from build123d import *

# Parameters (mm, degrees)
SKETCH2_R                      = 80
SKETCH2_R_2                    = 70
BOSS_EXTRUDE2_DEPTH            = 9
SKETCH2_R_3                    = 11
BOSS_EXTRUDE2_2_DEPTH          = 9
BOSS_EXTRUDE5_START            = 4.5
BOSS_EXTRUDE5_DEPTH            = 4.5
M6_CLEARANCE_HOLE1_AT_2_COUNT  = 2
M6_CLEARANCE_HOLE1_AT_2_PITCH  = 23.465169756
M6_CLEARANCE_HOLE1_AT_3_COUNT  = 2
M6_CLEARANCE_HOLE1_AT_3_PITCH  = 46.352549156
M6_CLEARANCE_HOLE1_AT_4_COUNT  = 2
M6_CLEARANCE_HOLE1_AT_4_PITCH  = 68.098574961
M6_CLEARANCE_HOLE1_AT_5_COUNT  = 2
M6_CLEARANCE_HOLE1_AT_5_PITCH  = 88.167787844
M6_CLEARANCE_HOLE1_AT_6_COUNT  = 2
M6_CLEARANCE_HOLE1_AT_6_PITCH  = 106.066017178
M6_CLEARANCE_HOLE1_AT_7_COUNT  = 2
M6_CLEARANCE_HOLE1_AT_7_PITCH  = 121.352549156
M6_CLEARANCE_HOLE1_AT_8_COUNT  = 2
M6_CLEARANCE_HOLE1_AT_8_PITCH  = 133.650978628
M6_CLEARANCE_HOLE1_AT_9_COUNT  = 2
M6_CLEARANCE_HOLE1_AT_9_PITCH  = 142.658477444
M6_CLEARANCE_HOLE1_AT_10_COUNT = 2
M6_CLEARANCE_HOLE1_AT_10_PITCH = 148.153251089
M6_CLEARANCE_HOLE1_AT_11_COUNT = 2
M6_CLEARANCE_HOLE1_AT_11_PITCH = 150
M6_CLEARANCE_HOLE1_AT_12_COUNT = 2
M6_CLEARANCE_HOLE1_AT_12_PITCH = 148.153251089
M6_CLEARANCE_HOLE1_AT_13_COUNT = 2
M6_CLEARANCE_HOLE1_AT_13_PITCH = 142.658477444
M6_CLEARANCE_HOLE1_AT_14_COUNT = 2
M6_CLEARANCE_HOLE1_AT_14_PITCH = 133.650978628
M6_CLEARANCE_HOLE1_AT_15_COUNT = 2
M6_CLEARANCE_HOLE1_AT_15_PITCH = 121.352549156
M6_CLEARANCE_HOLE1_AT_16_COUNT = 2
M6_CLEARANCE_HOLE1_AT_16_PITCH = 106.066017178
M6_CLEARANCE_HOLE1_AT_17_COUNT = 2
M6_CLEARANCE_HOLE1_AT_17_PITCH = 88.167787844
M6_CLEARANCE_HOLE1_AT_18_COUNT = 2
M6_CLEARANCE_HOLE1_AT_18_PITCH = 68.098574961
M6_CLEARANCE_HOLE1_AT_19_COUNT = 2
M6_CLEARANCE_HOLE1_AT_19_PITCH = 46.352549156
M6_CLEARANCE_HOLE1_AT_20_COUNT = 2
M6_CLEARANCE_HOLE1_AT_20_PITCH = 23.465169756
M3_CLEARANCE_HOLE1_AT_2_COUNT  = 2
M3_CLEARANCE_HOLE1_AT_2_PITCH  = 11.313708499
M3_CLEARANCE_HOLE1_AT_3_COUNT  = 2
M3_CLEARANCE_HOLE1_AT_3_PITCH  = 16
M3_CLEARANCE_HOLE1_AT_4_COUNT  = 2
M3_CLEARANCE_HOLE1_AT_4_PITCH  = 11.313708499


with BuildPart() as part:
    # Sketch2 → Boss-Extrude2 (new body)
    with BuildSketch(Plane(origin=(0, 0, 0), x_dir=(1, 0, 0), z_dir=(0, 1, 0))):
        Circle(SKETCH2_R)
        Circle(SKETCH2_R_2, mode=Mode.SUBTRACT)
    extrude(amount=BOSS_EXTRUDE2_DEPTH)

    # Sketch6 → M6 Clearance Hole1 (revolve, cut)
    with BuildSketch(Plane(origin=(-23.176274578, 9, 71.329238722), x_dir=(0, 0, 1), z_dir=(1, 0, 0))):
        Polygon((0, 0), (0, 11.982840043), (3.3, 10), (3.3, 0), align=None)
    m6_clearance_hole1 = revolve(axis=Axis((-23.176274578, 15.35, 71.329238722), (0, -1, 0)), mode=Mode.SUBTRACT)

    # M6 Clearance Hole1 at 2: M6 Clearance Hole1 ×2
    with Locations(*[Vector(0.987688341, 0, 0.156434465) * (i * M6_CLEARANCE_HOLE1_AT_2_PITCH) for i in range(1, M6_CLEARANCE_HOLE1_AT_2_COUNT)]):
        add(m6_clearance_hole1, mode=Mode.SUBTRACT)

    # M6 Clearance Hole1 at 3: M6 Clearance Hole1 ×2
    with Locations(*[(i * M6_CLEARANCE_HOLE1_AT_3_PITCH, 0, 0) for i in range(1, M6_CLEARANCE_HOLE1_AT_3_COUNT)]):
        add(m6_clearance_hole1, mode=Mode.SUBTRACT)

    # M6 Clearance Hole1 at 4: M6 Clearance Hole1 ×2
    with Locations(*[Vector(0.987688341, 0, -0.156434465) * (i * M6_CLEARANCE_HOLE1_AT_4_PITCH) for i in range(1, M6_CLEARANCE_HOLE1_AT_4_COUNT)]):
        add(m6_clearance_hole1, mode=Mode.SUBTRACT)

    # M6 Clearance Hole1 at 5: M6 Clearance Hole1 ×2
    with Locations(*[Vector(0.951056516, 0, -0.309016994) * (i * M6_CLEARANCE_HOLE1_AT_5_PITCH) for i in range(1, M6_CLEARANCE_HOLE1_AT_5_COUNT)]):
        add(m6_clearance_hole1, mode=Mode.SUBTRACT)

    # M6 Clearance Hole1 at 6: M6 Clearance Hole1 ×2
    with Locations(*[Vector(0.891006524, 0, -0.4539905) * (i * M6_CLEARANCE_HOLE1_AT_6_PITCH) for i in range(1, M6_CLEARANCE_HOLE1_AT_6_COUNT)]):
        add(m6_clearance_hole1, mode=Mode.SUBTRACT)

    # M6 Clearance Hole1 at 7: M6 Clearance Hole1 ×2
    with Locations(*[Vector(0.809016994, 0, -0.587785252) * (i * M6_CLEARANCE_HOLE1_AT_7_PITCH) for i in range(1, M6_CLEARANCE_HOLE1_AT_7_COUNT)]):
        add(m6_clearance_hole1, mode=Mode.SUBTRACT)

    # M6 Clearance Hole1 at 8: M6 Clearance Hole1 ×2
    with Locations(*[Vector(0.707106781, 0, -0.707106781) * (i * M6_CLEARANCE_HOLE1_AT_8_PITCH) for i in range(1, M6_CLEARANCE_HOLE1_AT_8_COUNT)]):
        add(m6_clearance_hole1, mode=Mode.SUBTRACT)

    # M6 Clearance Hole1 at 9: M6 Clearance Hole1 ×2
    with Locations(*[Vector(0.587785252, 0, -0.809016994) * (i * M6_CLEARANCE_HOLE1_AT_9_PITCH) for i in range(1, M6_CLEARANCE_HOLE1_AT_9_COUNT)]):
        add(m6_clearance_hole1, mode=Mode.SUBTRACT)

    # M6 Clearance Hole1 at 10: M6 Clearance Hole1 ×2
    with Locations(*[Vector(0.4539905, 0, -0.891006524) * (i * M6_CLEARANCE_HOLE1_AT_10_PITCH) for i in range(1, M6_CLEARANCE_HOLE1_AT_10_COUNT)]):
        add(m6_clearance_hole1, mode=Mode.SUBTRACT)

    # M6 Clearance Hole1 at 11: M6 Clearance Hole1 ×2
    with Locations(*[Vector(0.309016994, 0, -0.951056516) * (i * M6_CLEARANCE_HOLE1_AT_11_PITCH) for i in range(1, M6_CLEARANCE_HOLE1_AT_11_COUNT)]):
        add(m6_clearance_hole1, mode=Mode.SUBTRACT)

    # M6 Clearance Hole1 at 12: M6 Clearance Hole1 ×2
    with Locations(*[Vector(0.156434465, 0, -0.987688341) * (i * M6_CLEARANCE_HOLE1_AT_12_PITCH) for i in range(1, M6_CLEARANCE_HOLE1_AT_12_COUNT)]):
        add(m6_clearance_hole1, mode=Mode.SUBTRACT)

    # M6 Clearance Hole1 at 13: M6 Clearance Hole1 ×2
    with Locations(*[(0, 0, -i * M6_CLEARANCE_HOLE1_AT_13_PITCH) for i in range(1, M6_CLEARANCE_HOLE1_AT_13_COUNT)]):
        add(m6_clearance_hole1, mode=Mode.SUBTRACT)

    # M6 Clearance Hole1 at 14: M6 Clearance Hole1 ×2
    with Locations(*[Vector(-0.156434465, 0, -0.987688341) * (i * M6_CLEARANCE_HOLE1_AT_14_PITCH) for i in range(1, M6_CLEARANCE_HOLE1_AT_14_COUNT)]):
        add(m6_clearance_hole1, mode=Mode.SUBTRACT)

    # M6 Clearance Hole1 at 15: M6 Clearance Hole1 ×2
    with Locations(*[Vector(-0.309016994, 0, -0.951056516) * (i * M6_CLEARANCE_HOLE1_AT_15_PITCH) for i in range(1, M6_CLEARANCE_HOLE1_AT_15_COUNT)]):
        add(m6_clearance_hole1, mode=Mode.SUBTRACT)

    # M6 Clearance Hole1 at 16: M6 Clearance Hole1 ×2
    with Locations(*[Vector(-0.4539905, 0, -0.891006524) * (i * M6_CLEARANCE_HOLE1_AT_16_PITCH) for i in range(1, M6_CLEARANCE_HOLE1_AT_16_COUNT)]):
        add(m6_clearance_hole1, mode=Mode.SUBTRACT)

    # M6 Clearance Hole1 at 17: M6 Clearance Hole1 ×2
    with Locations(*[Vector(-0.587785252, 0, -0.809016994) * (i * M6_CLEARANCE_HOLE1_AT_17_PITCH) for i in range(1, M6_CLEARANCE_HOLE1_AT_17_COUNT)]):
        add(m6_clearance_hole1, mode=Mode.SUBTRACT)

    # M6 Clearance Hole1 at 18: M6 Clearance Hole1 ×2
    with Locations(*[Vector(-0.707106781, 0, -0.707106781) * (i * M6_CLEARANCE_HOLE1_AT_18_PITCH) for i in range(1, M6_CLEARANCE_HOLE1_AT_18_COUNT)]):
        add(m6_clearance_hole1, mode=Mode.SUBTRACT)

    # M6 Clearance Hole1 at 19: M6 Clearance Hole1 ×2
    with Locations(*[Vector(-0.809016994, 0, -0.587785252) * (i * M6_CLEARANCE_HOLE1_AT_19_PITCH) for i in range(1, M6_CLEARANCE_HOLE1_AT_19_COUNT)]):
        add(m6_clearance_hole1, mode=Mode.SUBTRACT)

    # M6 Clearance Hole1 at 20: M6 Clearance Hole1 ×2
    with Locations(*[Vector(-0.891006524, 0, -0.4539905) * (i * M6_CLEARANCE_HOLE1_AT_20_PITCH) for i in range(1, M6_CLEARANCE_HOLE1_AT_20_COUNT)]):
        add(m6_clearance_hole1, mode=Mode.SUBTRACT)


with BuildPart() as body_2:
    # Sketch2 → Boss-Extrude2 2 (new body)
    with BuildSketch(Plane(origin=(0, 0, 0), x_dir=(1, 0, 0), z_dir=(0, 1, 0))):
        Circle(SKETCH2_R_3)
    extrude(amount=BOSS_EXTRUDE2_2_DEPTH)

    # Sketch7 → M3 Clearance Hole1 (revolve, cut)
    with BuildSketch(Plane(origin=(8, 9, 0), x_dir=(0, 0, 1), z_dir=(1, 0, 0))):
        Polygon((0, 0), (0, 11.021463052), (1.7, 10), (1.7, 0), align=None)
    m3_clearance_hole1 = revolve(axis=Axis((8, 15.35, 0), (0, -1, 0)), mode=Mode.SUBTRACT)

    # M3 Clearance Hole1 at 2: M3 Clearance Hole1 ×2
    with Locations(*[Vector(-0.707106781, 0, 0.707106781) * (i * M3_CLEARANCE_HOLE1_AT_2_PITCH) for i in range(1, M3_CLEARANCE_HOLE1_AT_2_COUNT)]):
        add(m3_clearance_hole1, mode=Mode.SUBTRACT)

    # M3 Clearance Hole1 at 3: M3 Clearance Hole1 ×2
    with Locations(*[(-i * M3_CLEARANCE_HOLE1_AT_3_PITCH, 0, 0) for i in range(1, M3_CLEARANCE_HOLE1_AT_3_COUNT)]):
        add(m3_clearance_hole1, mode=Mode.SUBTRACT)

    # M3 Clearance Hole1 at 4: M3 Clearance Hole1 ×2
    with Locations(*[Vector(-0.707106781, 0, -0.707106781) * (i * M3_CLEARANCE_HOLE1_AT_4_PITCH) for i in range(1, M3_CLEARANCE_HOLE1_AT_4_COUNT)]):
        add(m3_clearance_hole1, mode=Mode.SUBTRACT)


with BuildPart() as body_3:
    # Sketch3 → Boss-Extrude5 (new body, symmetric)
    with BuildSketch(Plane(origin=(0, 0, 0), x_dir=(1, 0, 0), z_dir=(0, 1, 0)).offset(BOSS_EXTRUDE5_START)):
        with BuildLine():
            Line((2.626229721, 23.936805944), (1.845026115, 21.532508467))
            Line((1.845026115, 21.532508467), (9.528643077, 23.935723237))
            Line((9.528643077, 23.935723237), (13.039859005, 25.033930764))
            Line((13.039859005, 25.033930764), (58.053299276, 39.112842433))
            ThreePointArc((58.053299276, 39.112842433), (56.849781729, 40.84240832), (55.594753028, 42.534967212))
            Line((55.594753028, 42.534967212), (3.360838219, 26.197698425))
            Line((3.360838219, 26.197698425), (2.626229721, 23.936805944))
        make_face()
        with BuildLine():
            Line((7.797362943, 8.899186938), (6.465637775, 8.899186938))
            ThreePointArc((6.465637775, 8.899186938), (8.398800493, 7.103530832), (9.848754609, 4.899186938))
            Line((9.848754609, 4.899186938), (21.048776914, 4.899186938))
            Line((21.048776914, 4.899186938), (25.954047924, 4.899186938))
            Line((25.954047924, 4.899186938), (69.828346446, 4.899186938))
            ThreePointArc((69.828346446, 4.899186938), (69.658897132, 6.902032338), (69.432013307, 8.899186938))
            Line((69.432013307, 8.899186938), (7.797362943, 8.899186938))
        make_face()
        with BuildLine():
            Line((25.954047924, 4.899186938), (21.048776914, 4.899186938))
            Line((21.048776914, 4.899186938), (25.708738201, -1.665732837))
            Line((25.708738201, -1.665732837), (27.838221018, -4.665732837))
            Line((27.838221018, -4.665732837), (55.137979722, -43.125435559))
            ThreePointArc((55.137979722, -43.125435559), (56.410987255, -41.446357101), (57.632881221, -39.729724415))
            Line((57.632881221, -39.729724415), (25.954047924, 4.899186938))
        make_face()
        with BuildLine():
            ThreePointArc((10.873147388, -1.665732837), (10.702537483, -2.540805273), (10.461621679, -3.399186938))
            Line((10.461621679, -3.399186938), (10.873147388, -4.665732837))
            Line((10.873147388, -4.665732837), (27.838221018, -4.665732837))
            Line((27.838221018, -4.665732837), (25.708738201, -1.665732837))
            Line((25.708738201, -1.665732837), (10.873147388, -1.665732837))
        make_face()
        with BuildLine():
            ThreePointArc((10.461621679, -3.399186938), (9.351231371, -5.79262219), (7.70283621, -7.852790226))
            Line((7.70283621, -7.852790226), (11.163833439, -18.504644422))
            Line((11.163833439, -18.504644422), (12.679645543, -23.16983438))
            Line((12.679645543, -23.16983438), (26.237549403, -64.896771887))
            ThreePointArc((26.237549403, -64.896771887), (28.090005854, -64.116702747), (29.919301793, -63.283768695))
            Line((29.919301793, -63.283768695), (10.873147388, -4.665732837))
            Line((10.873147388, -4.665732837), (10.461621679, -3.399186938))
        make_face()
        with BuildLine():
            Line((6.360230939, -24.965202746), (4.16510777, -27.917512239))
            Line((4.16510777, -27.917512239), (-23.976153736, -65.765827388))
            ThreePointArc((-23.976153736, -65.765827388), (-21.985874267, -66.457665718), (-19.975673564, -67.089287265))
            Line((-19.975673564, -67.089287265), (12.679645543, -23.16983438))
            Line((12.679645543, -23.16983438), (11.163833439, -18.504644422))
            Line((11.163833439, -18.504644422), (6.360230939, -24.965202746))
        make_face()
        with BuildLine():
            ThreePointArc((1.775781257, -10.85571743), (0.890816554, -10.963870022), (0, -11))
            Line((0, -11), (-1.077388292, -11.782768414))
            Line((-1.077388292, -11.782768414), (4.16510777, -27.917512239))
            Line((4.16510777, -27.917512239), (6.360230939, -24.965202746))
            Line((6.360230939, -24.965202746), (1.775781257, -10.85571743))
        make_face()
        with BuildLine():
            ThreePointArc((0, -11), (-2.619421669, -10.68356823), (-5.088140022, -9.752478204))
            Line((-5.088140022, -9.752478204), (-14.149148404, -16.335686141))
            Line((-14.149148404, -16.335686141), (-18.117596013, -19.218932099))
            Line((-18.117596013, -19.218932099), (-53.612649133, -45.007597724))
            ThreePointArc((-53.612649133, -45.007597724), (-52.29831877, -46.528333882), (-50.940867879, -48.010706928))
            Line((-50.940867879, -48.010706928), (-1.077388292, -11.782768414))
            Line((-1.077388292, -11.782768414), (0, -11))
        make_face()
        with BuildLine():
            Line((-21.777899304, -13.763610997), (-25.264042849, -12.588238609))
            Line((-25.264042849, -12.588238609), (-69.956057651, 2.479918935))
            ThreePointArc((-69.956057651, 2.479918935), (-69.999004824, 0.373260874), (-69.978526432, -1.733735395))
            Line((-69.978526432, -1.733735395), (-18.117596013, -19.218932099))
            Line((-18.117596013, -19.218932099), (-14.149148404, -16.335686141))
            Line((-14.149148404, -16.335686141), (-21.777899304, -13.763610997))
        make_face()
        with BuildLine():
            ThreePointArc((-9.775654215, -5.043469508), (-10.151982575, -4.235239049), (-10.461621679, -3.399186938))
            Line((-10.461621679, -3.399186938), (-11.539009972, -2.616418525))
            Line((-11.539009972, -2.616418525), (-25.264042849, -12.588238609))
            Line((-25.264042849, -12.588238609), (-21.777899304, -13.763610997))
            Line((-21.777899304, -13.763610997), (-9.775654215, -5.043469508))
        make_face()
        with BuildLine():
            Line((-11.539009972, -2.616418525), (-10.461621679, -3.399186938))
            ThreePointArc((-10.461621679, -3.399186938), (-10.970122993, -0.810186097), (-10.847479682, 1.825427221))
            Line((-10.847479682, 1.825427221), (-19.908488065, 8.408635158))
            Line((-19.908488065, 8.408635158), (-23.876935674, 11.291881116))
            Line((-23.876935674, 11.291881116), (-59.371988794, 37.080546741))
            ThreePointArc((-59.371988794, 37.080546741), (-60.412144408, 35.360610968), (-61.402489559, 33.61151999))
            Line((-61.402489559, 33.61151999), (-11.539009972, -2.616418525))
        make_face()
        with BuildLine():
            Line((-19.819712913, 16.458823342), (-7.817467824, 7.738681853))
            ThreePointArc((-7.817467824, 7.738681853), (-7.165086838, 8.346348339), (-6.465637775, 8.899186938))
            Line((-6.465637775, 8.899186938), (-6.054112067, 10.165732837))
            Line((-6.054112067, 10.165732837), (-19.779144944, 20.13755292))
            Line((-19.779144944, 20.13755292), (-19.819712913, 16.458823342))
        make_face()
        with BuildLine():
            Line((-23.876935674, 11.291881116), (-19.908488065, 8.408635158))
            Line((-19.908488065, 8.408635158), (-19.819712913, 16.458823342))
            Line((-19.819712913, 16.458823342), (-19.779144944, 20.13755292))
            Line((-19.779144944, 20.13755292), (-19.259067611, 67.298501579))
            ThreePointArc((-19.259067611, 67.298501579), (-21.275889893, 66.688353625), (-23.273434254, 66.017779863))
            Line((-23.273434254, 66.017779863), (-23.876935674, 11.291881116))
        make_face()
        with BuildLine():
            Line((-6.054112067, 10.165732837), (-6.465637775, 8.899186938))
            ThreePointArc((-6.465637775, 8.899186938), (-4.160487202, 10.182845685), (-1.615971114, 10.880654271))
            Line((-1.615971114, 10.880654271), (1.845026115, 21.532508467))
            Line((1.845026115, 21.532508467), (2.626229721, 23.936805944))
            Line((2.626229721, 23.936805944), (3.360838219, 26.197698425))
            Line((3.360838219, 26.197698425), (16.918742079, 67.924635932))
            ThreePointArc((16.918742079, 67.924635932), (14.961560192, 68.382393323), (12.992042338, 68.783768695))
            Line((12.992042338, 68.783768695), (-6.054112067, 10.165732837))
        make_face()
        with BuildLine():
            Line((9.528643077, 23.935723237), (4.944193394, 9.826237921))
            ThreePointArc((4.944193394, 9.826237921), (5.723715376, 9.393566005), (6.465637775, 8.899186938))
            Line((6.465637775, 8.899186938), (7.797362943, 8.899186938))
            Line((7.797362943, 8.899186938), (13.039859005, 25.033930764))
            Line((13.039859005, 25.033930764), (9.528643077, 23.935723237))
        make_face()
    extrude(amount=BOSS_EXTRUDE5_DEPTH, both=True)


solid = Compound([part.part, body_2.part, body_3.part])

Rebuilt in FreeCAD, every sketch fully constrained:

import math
import FreeCAD as App
import Part
import Sketcher

V = App.Vector
Q = App.Units.Quantity


def add_polygon(sketch, points):
    """Adds a closed chain of lines whose ends are joined by coincident constraints."""
    first, n = sketch.GeometryCount, len(points)
    for a, b in zip(points, points[1:] + points[:1]):
        sketch.addGeometry(Part.LineSegment(App.Vector(*a, 0), App.Vector(*b, 0)), False)
    for i in range(n):
        sketch.addConstraint(Sketcher.Constraint("Coincident", first + i, 2, first + (i + 1) % n, 1))

doc = App.newDocument("Part")
body = doc.addObject("PartDesign::Body", "Body")

# Sketch on XZ plane
sketch1 = doc.addObject("Sketcher::SketchObject", "Sketch")
body.addObject(sketch1)
sketch1.AttachmentSupport = (doc.XZ_Plane, [""])
sketch1.MapMode = "FlatFace"
sketch1.addGeometry([
    Part.Circle(V(0, 0, 0), V(0, 0, 1), 80),
    Part.Circle(V(0, 0, 0), V(0, 0, 1), 70),
], False)
sketch1.addConstraint([
    Sketcher.Constraint("Coincident", 0, 3, -1, 1),
    Sketcher.Constraint("Coincident", 1, 3, -1, 1),
    Sketcher.Constraint("Diameter", 0, Q("160 mm")),
    Sketcher.Constraint("Diameter", 1, Q("140 mm")),
])
pad1 = doc.addObject("PartDesign::Pad", "Pad")
body.addObject(pad1)
pad1.Profile = sketch1
pad1.Length = 9
pad1.Reversed = True

# Sketch on YZ plane
sketch2 = doc.addObject("Sketcher::SketchObject", "Sketch001")
body.addObject(sketch2)
sketch2.AttachmentSupport = (doc.YZ_Plane, [""])
sketch2.MapMode = "FlatFace"
sketch2.AttachmentOffset = App.Placement(V(0, 0, -23.176275), App.Rotation())
add_polygon(sketch2, [(-2.98284, 71.329239), (9, 71.329239), (9, 74.629239), (-1, 74.629239)])  # lines 0-3
sketch2.addGeometry(Part.LineSegment(V(9, 71.329239, 0), V(-2.98284, 71.329239, 0)), True)  # axis
sketch2.addConstraint([
    Sketcher.Constraint("Horizontal", 0),
    Sketcher.Constraint("Vertical", 1),
    Sketcher.Constraint("Horizontal", 2),
    Sketcher.Constraint("Horizontal", 4),
    Sketcher.Constraint("Coincident", 4, 1, 0, 2),
    Sketcher.Constraint("Equal", 0, 4),
    Sketcher.Constraint("DistanceX", 2, 2, 2, 1, Q("10 mm")),
    Sketcher.Constraint("Angle", 3, Q("-121 deg")),
    Sketcher.Constraint("DistanceY", 1, 1, 1, 2, Q("3.3 mm")),
    Sketcher.Constraint("DistanceX", -1, 1, 0, 2, Q("9 mm")),
    Sketcher.Constraint("DistanceY", -1, 1, 0, 2, Q("71.329239 mm")),
])
groove = doc.addObject("PartDesign::Groove", "Groove")
body.addObject(groove)
groove.Profile = sketch2
groove.ReferenceAxis = (sketch2, ["Axis0"])
groove.Angle = 360
doc.recompute()

datumline = doc.addObject("PartDesign::Line", "DatumLine")
body.addObject(datumline)
datumline.Placement = App.Placement(V(0, 0, 0), App.Rotation(V(0, 0, 1), V(0.987688341, 0, 0.156434465)))
linearpattern = doc.addObject("PartDesign::LinearPattern", "LinearPattern")
body.addObject(linearpattern)
linearpattern.Originals = [groove]
linearpattern.Direction = (datumline, [""])
linearpattern.Mode = "offset"
linearpattern.Offset = 23.46517
linearpattern.Occurrences = 2
body.Tip = linearpattern
doc.recompute()

linearpattern2 = doc.addObject("PartDesign::LinearPattern", "LinearPattern001")
body.addObject(linearpattern2)
linearpattern2.Originals = [groove]
linearpattern2.Direction = (doc.X_Axis, [""])
linearpattern2.Mode = "offset"
linearpattern2.Offset = 46.352549
linearpattern2.Occurrences = 2
body.Tip = linearpattern2
doc.recompute()

datumline2 = doc.addObject("PartDesign::Line", "DatumLine001")
body.addObject(datumline2)
datumline2.Placement = App.Placement(V(0, 0, 0), App.Rotation(V(0, 0, 1), V(0.987688341, 0, -0.156434465)))
linearpattern3 = doc.addObject("PartDesign::LinearPattern", "LinearPattern002")
body.addObject(linearpattern3)
linearpattern3.Originals = [groove]
linearpattern3.Direction = (datumline2, [""])
linearpattern3.Mode = "offset"
linearpattern3.Offset = 68.098575
linearpattern3.Occurrences = 2
body.Tip = linearpattern3
doc.recompute()

datumline3 = doc.addObject("PartDesign::Line", "DatumLine002")
body.addObject(datumline3)
datumline3.Placement = App.Placement(V(0, 0, 0), App.Rotation(V(0, 0, 1), V(0.951056516, 0, -0.309016994)))
linearpattern4 = doc.addObject("PartDesign::LinearPattern", "LinearPattern003")
body.addObject(linearpattern4)
linearpattern4.Originals = [groove]
linearpattern4.Direction = (datumline3, [""])
linearpattern4.Mode = "offset"
linearpattern4.Offset = 88.167788
linearpattern4.Occurrences = 2
body.Tip = linearpattern4
doc.recompute()

datumline4 = doc.addObject("PartDesign::Line", "DatumLine003")
body.addObject(datumline4)
datumline4.Placement = App.Placement(V(0, 0, 0), App.Rotation(V(0, 0, 1), V(0.891006524, 0, -0.4539905)))
linearpattern5 = doc.addObject("PartDesign::LinearPattern", "LinearPattern004")
body.addObject(linearpattern5)
linearpattern5.Originals = [groove]
linearpattern5.Direction = (datumline4, [""])
linearpattern5.Mode = "offset"
linearpattern5.Offset = 106.066017
linearpattern5.Occurrences = 2
body.Tip = linearpattern5
doc.recompute()

datumline5 = doc.addObject("PartDesign::Line", "DatumLine004")
body.addObject(datumline5)
datumline5.Placement = App.Placement(V(0, 0, 0), App.Rotation(V(0, 0, 1), V(0.809016994, 0, -0.587785252)))
linearpattern6 = doc.addObject("PartDesign::LinearPattern", "LinearPattern005")
body.addObject(linearpattern6)
linearpattern6.Originals = [groove]
linearpattern6.Direction = (datumline5, [""])
linearpattern6.Mode = "offset"
linearpattern6.Offset = 121.352549
linearpattern6.Occurrences = 2
body.Tip = linearpattern6
doc.recompute()

datumline6 = doc.addObject("PartDesign::Line", "DatumLine005")
body.addObject(datumline6)
datumline6.Placement = App.Placement(V(0, 0, 0), App.Rotation(V(0, 0, 1), V(0.707106781, 0, -0.707106781)))
linearpattern7 = doc.addObject("PartDesign::LinearPattern", "LinearPattern006")
body.addObject(linearpattern7)
linearpattern7.Originals = [groove]
linearpattern7.Direction = (datumline6, [""])
linearpattern7.Mode = "offset"
linearpattern7.Offset = 133.650979
linearpattern7.Occurrences = 2
body.Tip = linearpattern7
doc.recompute()

datumline7 = doc.addObject("PartDesign::Line", "DatumLine006")
body.addObject(datumline7)
datumline7.Placement = App.Placement(V(0, 0, 0), App.Rotation(V(0, 0, 1), V(0.587785252, 0, -0.809016994)))
linearpattern8 = doc.addObject("PartDesign::LinearPattern", "LinearPattern007")
body.addObject(linearpattern8)
linearpattern8.Originals = [groove]
linearpattern8.Direction = (datumline7, [""])
linearpattern8.Mode = "offset"
linearpattern8.Offset = 142.658477
linearpattern8.Occurrences = 2
body.Tip = linearpattern8
doc.recompute()

datumline8 = doc.addObject("PartDesign::Line", "DatumLine007")
body.addObject(datumline8)
datumline8.Placement = App.Placement(V(0, 0, 0), App.Rotation(V(0, 0, 1), V(0.4539905, 0, -0.891006524)))
linearpattern9 = doc.addObject("PartDesign::LinearPattern", "LinearPattern008")
body.addObject(linearpattern9)
linearpattern9.Originals = [groove]
linearpattern9.Direction = (datumline8, [""])
linearpattern9.Mode = "offset"
linearpattern9.Offset = 148.153251
linearpattern9.Occurrences = 2
body.Tip = linearpattern9
doc.recompute()

datumline9 = doc.addObject("PartDesign::Line", "DatumLine008")
body.addObject(datumline9)
datumline9.Placement = App.Placement(V(0, 0, 0), App.Rotation(V(0, 0, 1), V(0.309016994, 0, -0.951056516)))
linearpattern10 = doc.addObject("PartDesign::LinearPattern", "LinearPattern009")
body.addObject(linearpattern10)
linearpattern10.Originals = [groove]
linearpattern10.Direction = (datumline9, [""])
linearpattern10.Mode = "offset"
linearpattern10.Offset = 150
linearpattern10.Occurrences = 2
body.Tip = linearpattern10
doc.recompute()

datumline10 = doc.addObject("PartDesign::Line", "DatumLine009")
body.addObject(datumline10)
datumline10.Placement = App.Placement(V(0, 0, 0), App.Rotation(V(0, 0, 1), V(0.156434465, 0, -0.987688341)))
linearpattern11 = doc.addObject("PartDesign::LinearPattern", "LinearPattern010")
body.addObject(linearpattern11)
linearpattern11.Originals = [groove]
linearpattern11.Direction = (datumline10, [""])
linearpattern11.Mode = "offset"
linearpattern11.Offset = 148.153251
linearpattern11.Occurrences = 2
body.Tip = linearpattern11
doc.recompute()

linearpattern12 = doc.addObject("PartDesign::LinearPattern", "LinearPattern011")
body.addObject(linearpattern12)
linearpattern12.Originals = [groove]
linearpattern12.Direction = (doc.Z_Axis, [""])
linearpattern12.Mode = "offset"
linearpattern12.Offset = 142.658477
linearpattern12.Occurrences = 2
linearpattern12.Reversed = True
body.Tip = linearpattern12
doc.recompute()

datumline11 = doc.addObject("PartDesign::Line", "DatumLine010")
body.addObject(datumline11)
datumline11.Placement = App.Placement(V(0, 0, 0), App.Rotation(V(0, 0, 1), V(-0.156434465, 0, -0.987688341)))
linearpattern13 = doc.addObject("PartDesign::LinearPattern", "LinearPattern012")
body.addObject(linearpattern13)
linearpattern13.Originals = [groove]
linearpattern13.Direction = (datumline11, [""])
linearpattern13.Mode = "offset"
linearpattern13.Offset = 133.650979
linearpattern13.Occurrences = 2
body.Tip = linearpattern13
doc.recompute()

datumline12 = doc.addObject("PartDesign::Line", "DatumLine011")
body.addObject(datumline12)
datumline12.Placement = App.Placement(V(0, 0, 0), App.Rotation(V(0, 0, 1), V(-0.309016994, 0, -0.951056516)))
linearpattern14 = doc.addObject("PartDesign::LinearPattern", "LinearPattern013")
body.addObject(linearpattern14)
linearpattern14.Originals = [groove]
linearpattern14.Direction = (datumline12, [""])
linearpattern14.Mode = "offset"
linearpattern14.Offset = 121.352549
linearpattern14.Occurrences = 2
body.Tip = linearpattern14
doc.recompute()

datumline13 = doc.addObject("PartDesign::Line", "DatumLine012")
body.addObject(datumline13)
datumline13.Placement = App.Placement(V(0, 0, 0), App.Rotation(V(0, 0, 1), V(-0.4539905, 0, -0.891006524)))
linearpattern15 = doc.addObject("PartDesign::LinearPattern", "LinearPattern014")
body.addObject(linearpattern15)
linearpattern15.Originals = [groove]
linearpattern15.Direction = (datumline13, [""])
linearpattern15.Mode = "offset"
linearpattern15.Offset = 106.066017
linearpattern15.Occurrences = 2
body.Tip = linearpattern15
doc.recompute()

datumline14 = doc.addObject("PartDesign::Line", "DatumLine013")
body.addObject(datumline14)
datumline14.Placement = App.Placement(V(0, 0, 0), App.Rotation(V(0, 0, 1), V(-0.587785252, 0, -0.809016994)))
linearpattern16 = doc.addObject("PartDesign::LinearPattern", "LinearPattern015")
body.addObject(linearpattern16)
linearpattern16.Originals = [groove]
linearpattern16.Direction = (datumline14, [""])
linearpattern16.Mode = "offset"
linearpattern16.Offset = 88.167788
linearpattern16.Occurrences = 2
body.Tip = linearpattern16
doc.recompute()

datumline15 = doc.addObject("PartDesign::Line", "DatumLine014")
body.addObject(datumline15)
datumline15.Placement = App.Placement(V(0, 0, 0), App.Rotation(V(0, 0, 1), V(-0.707106781, 0, -0.707106781)))
linearpattern17 = doc.addObject("PartDesign::LinearPattern", "LinearPattern016")
body.addObject(linearpattern17)
linearpattern17.Originals = [groove]
linearpattern17.Direction = (datumline15, [""])
linearpattern17.Mode = "offset"
linearpattern17.Offset = 68.098575
linearpattern17.Occurrences = 2
body.Tip = linearpattern17
doc.recompute()

datumline16 = doc.addObject("PartDesign::Line", "DatumLine015")
body.addObject(datumline16)
datumline16.Placement = App.Placement(V(0, 0, 0), App.Rotation(V(0, 0, 1), V(-0.809016994, 0, -0.587785252)))
linearpattern18 = doc.addObject("PartDesign::LinearPattern", "LinearPattern017")
body.addObject(linearpattern18)
linearpattern18.Originals = [groove]
linearpattern18.Direction = (datumline16, [""])
linearpattern18.Mode = "offset"
linearpattern18.Offset = 46.352549
linearpattern18.Occurrences = 2
body.Tip = linearpattern18
doc.recompute()

datumline17 = doc.addObject("PartDesign::Line", "DatumLine016")
body.addObject(datumline17)
datumline17.Placement = App.Placement(V(0, 0, 0), App.Rotation(V(0, 0, 1), V(-0.891006524, 0, -0.4539905)))
linearpattern19 = doc.addObject("PartDesign::LinearPattern", "LinearPattern018")
body.addObject(linearpattern19)
linearpattern19.Originals = [groove]
linearpattern19.Direction = (datumline17, [""])
linearpattern19.Mode = "offset"
linearpattern19.Offset = 23.46517
linearpattern19.Occurrences = 2
body.Tip = linearpattern19
body2 = doc.addObject("PartDesign::Body", "Body001")

# Sketch on XZ plane
sketch3 = doc.addObject("Sketcher::SketchObject", "Sketch002")
body2.addObject(sketch3)
sketch3.AttachmentSupport = (doc.getObject("XZ_Plane001"), [""])
sketch3.MapMode = "FlatFace"
sketch3.addGeometry(Part.Circle(V(0, 0, 0), V(0, 0, 1), 11), False)
sketch3.addConstraint([
    Sketcher.Constraint("Coincident", 0, 3, -1, 1),
    Sketcher.Constraint("Diameter", 0, Q("22 mm")),
])
pad2 = doc.addObject("PartDesign::Pad", "Pad001")
body2.addObject(pad2)
pad2.Profile = sketch3
pad2.Length = 9
pad2.Reversed = True

# Sketch on YZ plane
sketch4 = doc.addObject("Sketcher::SketchObject", "Sketch003")
body2.addObject(sketch4)
sketch4.AttachmentSupport = (doc.getObject("YZ_Plane001"), [""])
sketch4.MapMode = "FlatFace"
sketch4.AttachmentOffset = App.Placement(V(0, 0, 8), App.Rotation())
add_polygon(sketch4, [(-2.021463, 0), (9, 0), (9, 1.7), (-1, 1.7)])  # lines 0-3
sketch4.addConstraint([
    Sketcher.Constraint("Horizontal", 0),
    Sketcher.Constraint("Vertical", 1),
    Sketcher.Constraint("Horizontal", 2),
    Sketcher.Constraint("PointOnObject", 0, 2, -1),
    Sketcher.Constraint("DistanceX", 2, 2, 2, 1, Q("10 mm")),
    Sketcher.Constraint("Angle", 3, Q("-121 deg")),
    Sketcher.Constraint("DistanceY", 1, 1, 1, 2, Q("1.7 mm")),
    Sketcher.Constraint("DistanceX", -1, 1, 0, 2, Q("9 mm")),
])
groove2 = doc.addObject("PartDesign::Groove", "Groove001")
body2.addObject(groove2)
groove2.Profile = sketch4
groove2.ReferenceAxis = (sketch4, ["H_Axis"])
groove2.Angle = 360
doc.recompute()

datumline18 = doc.addObject("PartDesign::Line", "DatumLine017")
body2.addObject(datumline18)
datumline18.Placement = App.Placement(V(0, 0, 0), App.Rotation(V(0, 0, 1), V(-0.707106781, 0, 0.707106781)))
linearpattern20 = doc.addObject("PartDesign::LinearPattern", "LinearPattern019")
body2.addObject(linearpattern20)
linearpattern20.Originals = [groove2]
linearpattern20.Direction = (datumline18, [""])
linearpattern20.Mode = "offset"
linearpattern20.Offset = 11.313708
linearpattern20.Occurrences = 2
body2.Tip = linearpattern20
doc.recompute()

linearpattern21 = doc.addObject("PartDesign::LinearPattern", "LinearPattern020")
body2.addObject(linearpattern21)
linearpattern21.Originals = [groove2]
linearpattern21.Direction = (doc.getObject("X_Axis001"), [""])
linearpattern21.Mode = "offset"
linearpattern21.Offset = 16
linearpattern21.Occurrences = 2
linearpattern21.Reversed = True
body2.Tip = linearpattern21
doc.recompute()

datumline19 = doc.addObject("PartDesign::Line", "DatumLine018")
body2.addObject(datumline19)
datumline19.Placement = App.Placement(V(0, 0, 0), App.Rotation(V(0, 0, 1), V(-0.707106781, 0, -0.707106781)))
linearpattern22 = doc.addObject("PartDesign::LinearPattern", "LinearPattern021")
body2.addObject(linearpattern22)
linearpattern22.Originals = [groove2]
linearpattern22.Direction = (datumline19, [""])
linearpattern22.Mode = "offset"
linearpattern22.Offset = 11.313708
linearpattern22.Occurrences = 2
body2.Tip = linearpattern22
body3 = doc.addObject("PartDesign::Body", "Body002")

# Sketch on XZ plane
sketch5 = doc.addObject("Sketcher::SketchObject", "Sketch004")
body3.addObject(sketch5)
sketch5.AttachmentSupport = (doc.getObject("XZ_Plane002"), [""])
sketch5.MapMode = "FlatFace"
sketch5.AttachmentOffset = App.Placement(V(0, 0, -4.5), App.Rotation())
sketch5.addGeometry([
    Part.LineSegment(V(13.039859, -25.033931, 0), V(58.053299, -39.112842, 0)),  # 0
    Part.ArcOfCircle(Part.Circle(V(0, 0, 0), V(0, 0, 1), 70), math.radians(-37.419227), math.radians(-33.969734)),  # 1
    Part.LineSegment(V(55.594753, -42.534967, 0), V(3.360838, -26.197698, 0)),  # 2
    Part.LineSegment(V(3.360838, -26.197698, 0), V(16.918742, -67.924636, 0)),  # 3
    Part.ArcOfCircle(Part.Circle(V(0, 0.000001, 0), V(0, 0, 1), 70.000001), math.radians(-79.303849), math.radians(-76.01332)),  # 4
    Part.LineSegment(V(12.992042, -68.783769, 0), V(-6.054112, -10.165733, 0)),  # 5
    Part.LineSegment(V(-6.054112, -10.165733, 0), V(-19.779145, -20.137553, 0)),  # 6
    Part.LineSegment(V(-19.779145, -20.137553, 0), V(-19.259068, -67.298502, 0)),  # 7
    Part.ArcOfCircle(Part.Circle(V(0, 0.000001, 0), V(0, 0, 1), 70.000001), math.radians(-109.419227), math.radians(-105.969734)),  # 8
    Part.LineSegment(V(-23.273434, -66.01778, 0), V(-23.876936, -11.291881, 0)),  # 9
    Part.LineSegment(V(-23.876936, -11.291881, 0), V(-59.371989, -37.080547, 0)),  # 10
    Part.ArcOfCircle(Part.Circle(V(0, 0, 0), V(0, 0, 1), 70), math.radians(-151.303849), math.radians(-148.01332)),  # 11
    Part.LineSegment(V(-61.40249, -33.61152, 0), V(-11.53901, 2.616419, 0)),  # 12
    Part.LineSegment(V(-11.53901, 2.616419, 0), V(-25.264043, 12.588239, 0)),  # 13
    Part.LineSegment(V(-25.264043, 12.588239, 0), V(-69.956058, -2.479919, 0)),  # 14
    Part.ArcOfCircle(Part.Circle(V(0, 0, 0), V(0, 0, 1), 70), math.radians(178.580773), math.radians(182.030266)),  # 15
    Part.LineSegment(V(-69.978526, 1.733735, 0), V(-18.117596, 19.218932, 0)),  # 16
    Part.LineSegment(V(-18.117596, 19.218932, 0), V(-53.612649, 45.007598, 0)),  # 17
    Part.ArcOfCircle(Part.Circle(V(0, 0, 0), V(0, 0, 1), 69.999999), math.radians(136.696151), math.radians(139.98668)),  # 18
    Part.LineSegment(V(-50.940868, 48.010707, 0), V(-1.077388, 11.782768, 0)),  # 19
    Part.LineSegment(V(-1.077388, 11.782768, 0), V(4.165108, 27.917512, 0)),  # 20
    Part.LineSegment(V(4.165108, 27.917512, 0), V(-23.976154, 65.765827, 0)),  # 21
    Part.ArcOfCircle(Part.Circle(V(0, -0.000001, 0), V(0, 0, 1), 70.000001), math.radians(106.580773), math.radians(110.030266)),  # 22
    Part.LineSegment(V(-19.975674, 67.089287, 0), V(12.679646, 23.169834, 0)),  # 23
    Part.LineSegment(V(12.679646, 23.169834, 0), V(26.237549, 64.896772, 0)),  # 24
    Part.ArcOfCircle(Part.Circle(V(0, 0, 0), V(0, 0, 1), 70), math.radians(64.696151), math.radians(67.98668)),  # 25
    Part.LineSegment(V(29.919302, 63.283769, 0), V(10.873147, 4.665733, 0)),  # 26
    Part.LineSegment(V(10.873147, 4.665733, 0), V(27.838221, 4.665733, 0)),  # 27
    Part.LineSegment(V(27.838221, 4.665733, 0), V(55.13798, 43.125436, 0)),  # 28
    Part.ArcOfCircle(Part.Circle(V(0.000001, 0.000001, 0), V(0, 0, 1), 69.999999), math.radians(34.580773), math.radians(38.030266)),  # 29
    Part.LineSegment(V(57.632881, 39.729724, 0), V(25.954048, -4.899187, 0)),  # 30
    Part.LineSegment(V(25.954048, -4.899187, 0), V(69.828346, -4.899187, 0)),  # 31
    Part.ArcOfCircle(Part.Circle(V(0, 0, 0), V(0, 0, 1), 70), math.radians(-7.303849), math.radians(-4.01332)),  # 32
    Part.LineSegment(V(69.432013, -8.899187, 0), V(7.797363, -8.899187, 0)),  # 33
    Part.LineSegment(V(7.797363, -8.899187, 0), V(13.039859, -25.033931, 0)),  # 34
    Part.LineSegment(V(1.845026, -21.532508, 0), V(9.528643, -23.935723, 0)),  # 35
    Part.LineSegment(V(9.528643, -23.935723, 0), V(4.944193, -9.826238, 0)),  # 36
    Part.ArcOfCircle(Part.Circle(V(0, 0, 0), V(0, 0, 1), 11), math.radians(-63.290179), math.radians(-54)),  # 37
    Part.ArcOfCircle(Part.Circle(V(0, 0, 0), V(0, 0, 1), 11), math.radians(-54), math.radians(-26.447694)),  # 38
    Part.LineSegment(V(9.848755, -4.899187, 0), V(21.048777, -4.899187, 0)),  # 39
    Part.LineSegment(V(21.048777, -4.899187, 0), V(25.708738, 1.665733, 0)),  # 40
    Part.LineSegment(V(25.708738, 1.665733, 0), V(10.873147, 1.665733, 0)),  # 41
    Part.ArcOfCircle(Part.Circle(V(0, 0, 0), V(0, 0, 1), 11), math.radians(8.709821), math.radians(18)),  # 42
    Part.ArcOfCircle(Part.Circle(V(0, 0, 0), V(0, 0, 1), 11), math.radians(18), math.radians(45.552306)),  # 43
    Part.LineSegment(V(7.702836, 7.85279, 0), V(11.163833, 18.504644, 0)),  # 44
    Part.LineSegment(V(11.163833, 18.504644, 0), V(6.360231, 24.965203, 0)),  # 45
    Part.LineSegment(V(6.360231, 24.965203, 0), V(1.775781, 10.855717, 0)),  # 46
    Part.ArcOfCircle(Part.Circle(V(0, 0, 0), V(0, 0, 1), 11), math.radians(80.709821), math.radians(90)),  # 47
    Part.ArcOfCircle(Part.Circle(V(0, 0, 0), V(0, 0, 1), 11), math.radians(90), math.radians(117.552306)),  # 48
    Part.LineSegment(V(-5.08814, 9.752478, 0), V(-14.149148, 16.335686, 0)),  # 49
    Part.LineSegment(V(-14.149148, 16.335686, 0), V(-21.777899, 13.763611, 0)),  # 50
    Part.LineSegment(V(-21.777899, 13.763611, 0), V(-9.775654, 5.04347, 0)),  # 51
    Part.ArcOfCircle(Part.Circle(V(0, 0, 0), V(0, 0, 1), 11), math.radians(152.709821), math.radians(162)),  # 52
    Part.ArcOfCircle(Part.Circle(V(0, 0, 0), V(0, 0, 1), 11), math.radians(162), math.radians(189.552306)),  # 53
    Part.LineSegment(V(-10.84748, -1.825427, 0), V(-19.908488, -8.408635, 0)),  # 54
    Part.LineSegment(V(-19.908488, -8.408635, 0), V(-19.819713, -16.458823, 0)),  # 55
    Part.LineSegment(V(-19.819713, -16.458823, 0), V(-7.817468, -7.738682, 0)),  # 56
    Part.ArcOfCircle(Part.Circle(V(0, 0, 0), V(0, 0, 1), 11), math.radians(-135.290179), math.radians(-126)),  # 57
    Part.ArcOfCircle(Part.Circle(V(0, 0, 0), V(0, 0, 1), 11), math.radians(-126), math.radians(-98.447694)),  # 58
    Part.LineSegment(V(-1.615971, -10.880654, 0), V(1.845026, -21.532508, 0)),  # 59
], False)
sketch5.addConstraint([
    Sketcher.Constraint("Coincident", 0, 2, 1, 2),
    Sketcher.Constraint("Coincident", 1, 1, 2, 1),
    Sketcher.Constraint("Coincident", 2, 2, 3, 1),
    Sketcher.Constraint("Coincident", 3, 2, 4, 2),
    Sketcher.Constraint("Coincident", 4, 1, 5, 1),
    Sketcher.Constraint("Coincident", 5, 2, 6, 1),
    Sketcher.Constraint("Coincident", 6, 2, 7, 1),
    Sketcher.Constraint("Coincident", 7, 2, 8, 2),
    Sketcher.Constraint("Coincident", 8, 1, 9, 1),
    Sketcher.Constraint("Coincident", 9, 2, 10, 1),
    Sketcher.Constraint("Coincident", 10, 2, 11, 2),
    Sketcher.Constraint("Coincident", 11, 1, 12, 1),
    Sketcher.Constraint("Coincident", 12, 2, 13, 1),
    Sketcher.Constraint("Coincident", 13, 2, 14, 1),
    Sketcher.Constraint("Coincident", 14, 2, 15, 2),
    Sketcher.Constraint("Coincident", 15, 1, 16, 1),
    Sketcher.Constraint("Coincident", 16, 2, 17, 1),
    Sketcher.Constraint("Coincident", 17, 2, 18, 2),
    Sketcher.Constraint("Coincident", 18, 1, 19, 1),
    Sketcher.Constraint("Coincident", 19, 2, 20, 1),
    Sketcher.Constraint("Coincident", 20, 2, 21, 1),
    Sketcher.Constraint("Coincident", 21, 2, 22, 2),
    Sketcher.Constraint("Coincident", 22, 1, 23, 1),
    Sketcher.Constraint("Coincident", 23, 2, 24, 1),
    Sketcher.Constraint("Coincident", 24, 2, 25, 2),
    Sketcher.Constraint("Coincident", 25, 1, 26, 1),
    Sketcher.Constraint("Coincident", 26, 2, 27, 1),
    Sketcher.Constraint("Coincident", 27, 2, 28, 1),
    Sketcher.Constraint("Coincident", 28, 2, 29, 2),
    Sketcher.Constraint("Coincident", 29, 1, 30, 1),
    Sketcher.Constraint("Coincident", 30, 2, 31, 1),
    Sketcher.Constraint("Coincident", 31, 2, 32, 2),
    Sketcher.Constraint("Coincident", 32, 1, 33, 1),
    Sketcher.Constraint("Coincident", 33, 2, 34, 1),
    Sketcher.Constraint("Coincident", 34, 2, 0, 1),
    Sketcher.Constraint("Coincident", 35, 2, 36, 1),
    Sketcher.Constraint("Coincident", 36, 2, 37, 1),
    Sketcher.Constraint("Tangent", 37, 2, 38, 1),
    Sketcher.Constraint("Coincident", 38, 2, 39, 1),
    Sketcher.Constraint("Coincident", 39, 2, 40, 1),
    Sketcher.Constraint("Coincident", 40, 2, 41, 1),
    Sketcher.Constraint("Coincident", 41, 2, 42, 1),
    Sketcher.Constraint("Tangent", 42, 2, 43, 1),
    Sketcher.Constraint("Coincident", 43, 2, 44, 1),
    Sketcher.Constraint("Coincident", 44, 2, 45, 1),
    Sketcher.Constraint("Coincident", 45, 2, 46, 1),
    Sketcher.Constraint("Coincident", 46, 2, 47, 1),
    Sketcher.Constraint("Tangent", 47, 2, 48, 1),
    Sketcher.Constraint("Coincident", 48, 2, 49, 1),
    Sketcher.Constraint("Coincident", 49, 2, 50, 1),
    Sketcher.Constraint("Coincident", 50, 2, 51, 1),
    Sketcher.Constraint("Coincident", 51, 2, 52, 1),
    Sketcher.Constraint("Tangent", 52, 2, 53, 1),
    Sketcher.Constraint("Coincident", 53, 2, 54, 1),
    Sketcher.Constraint("Coincident", 54, 2, 55, 1),
    Sketcher.Constraint("Coincident", 55, 2, 56, 1),
    Sketcher.Constraint("Coincident", 56, 2, 57, 1),
    Sketcher.Constraint("Tangent", 57, 2, 58, 1),
    Sketcher.Constraint("Coincident", 58, 2, 59, 1),
    Sketcher.Constraint("Coincident", 59, 2, 35, 1),
    Sketcher.Constraint("Horizontal", 27),
    Sketcher.Constraint("Horizontal", 31),
    Sketcher.Constraint("Horizontal", 33),
    Sketcher.Constraint("Horizontal", 39),
    Sketcher.Constraint("Horizontal", 41),
    Sketcher.Constraint("Coincident", 1, 3, -1, 1),
    Sketcher.Constraint("Coincident", 4, 3, -1, 1),
    Sketcher.Constraint("Coincident", 8, 3, -1, 1),
    Sketcher.Constraint("Coincident", 11, 3, -1, 1),
    Sketcher.Constraint("Coincident", 15, 3, -1, 1),
    Sketcher.Constraint("Coincident", 18, 3, -1, 1),
    Sketcher.Constraint("Coincident", 22, 3, -1, 1),
    Sketcher.Constraint("Coincident", 25, 3, -1, 1),
    Sketcher.Constraint("Coincident", 29, 3, -1, 1),
    Sketcher.Constraint("Coincident", 32, 3, -1, 1),
    Sketcher.Constraint("Coincident", 37, 3, -1, 1),
    Sketcher.Constraint("Coincident", 42, 3, -1, 1),
    Sketcher.Constraint("Coincident", 47, 3, -1, 1),
    Sketcher.Constraint("Coincident", 52, 3, -1, 1),
    Sketcher.Constraint("Coincident", 57, 3, -1, 1),
    Sketcher.Constraint("Equal", 1, 4),
    Sketcher.Constraint("Equal", 4, 8),
    Sketcher.Constraint("Equal", 8, 11),
    Sketcher.Constraint("Equal", 11, 15),
    Sketcher.Constraint("Equal", 15, 18),
    Sketcher.Constraint("Equal", 18, 22),
    Sketcher.Constraint("Equal", 22, 25),
    Sketcher.Constraint("Equal", 25, 29),
    Sketcher.Constraint("Equal", 29, 32),
    Sketcher.Constraint("Equal", 37, 38),
    Sketcher.Constraint("Equal", 38, 42),
    Sketcher.Constraint("Equal", 42, 43),
    Sketcher.Constraint("Equal", 43, 47),
    Sketcher.Constraint("Equal", 47, 48),
    Sketcher.Constraint("Equal", 48, 52),
    Sketcher.Constraint("Equal", 52, 53),
    Sketcher.Constraint("Equal", 53, 57),
    Sketcher.Constraint("Equal", 57, 58),
    Sketcher.Constraint("PointOnObject", 47, 2, -2),
    Sketcher.Constraint("Parallel", 0, 2),
    Sketcher.Constraint("Parallel", 3, 5),
    Sketcher.Constraint("Parallel", 7, 9),
    Sketcher.Constraint("Parallel", 6, 10),
    Sketcher.Constraint("Parallel", 10, 12),
    Sketcher.Constraint("Parallel", 14, 16),
    Sketcher.Constraint("Parallel", 13, 17),
    Sketcher.Constraint("Parallel", 17, 19),
    Sketcher.Constraint("Parallel", 21, 23),
    Sketcher.Constraint("Parallel", 20, 24),
    Sketcher.Constraint("Parallel", 24, 26),
    Sketcher.Constraint("Parallel", 28, 30),
    Sketcher.Constraint("Parallel", 5, 34),
    Sketcher.Constraint("Parallel", 2, 35),
    Sketcher.Constraint("Parallel", 34, 36),
    Sketcher.Constraint("Parallel", 30, 40),
    Sketcher.Constraint("Parallel", 26, 44),
    Sketcher.Constraint("Parallel", 23, 45),
    Sketcher.Constraint("Parallel", 44, 46),
    Sketcher.Constraint("Parallel", 19, 49),
    Sketcher.Constraint("Parallel", 16, 50),
    Sketcher.Constraint("Parallel", 49, 51),
    Sketcher.Constraint("Parallel", 12, 54),
    Sketcher.Constraint("Parallel", 9, 55),
    Sketcher.Constraint("Parallel", 54, 56),
    Sketcher.Constraint("Parallel", 36, 59),
    Sketcher.Constraint("Horizontal", 33, 2, 37, 2),
    Sketcher.Constraint("Horizontal", 31, 2, 38, 2),
    Sketcher.Constraint("Horizontal", 42, 2, 52, 2),
    Sketcher.Constraint("Horizontal", 37, 2, 57, 2),
    Sketcher.Constraint("Vertical", 26, 2, 41, 2),
    Sketcher.Constraint("Equal", 0, 7),
    Sketcher.Constraint("Equal", 2, 9),
    Sketcher.Constraint("Equal", 3, 10),
    Sketcher.Constraint("Equal", 5, 12),
    Sketcher.Constraint("Equal", 6, 13),
    Sketcher.Constraint("Equal", 7, 14),
    Sketcher.Constraint("Equal", 9, 16),
    Sketcher.Constraint("Equal", 10, 17),
    Sketcher.Constraint("Equal", 12, 19),
    Sketcher.Constraint("Equal", 13, 20),
    Sketcher.Constraint("Equal", 14, 21),
    Sketcher.Constraint("Equal", 16, 23),
    Sketcher.Constraint("Equal", 17, 24),
    Sketcher.Constraint("Equal", 19, 26),
    Sketcher.Constraint("Equal", 21, 28),
    Sketcher.Constraint("Equal", 23, 30),
    Sketcher.Constraint("Equal", 20, 34),
    Sketcher.Constraint("Equal", 35, 40),
    Sketcher.Constraint("Equal", 40, 45),
    Sketcher.Constraint("Equal", 36, 46),
    Sketcher.Constraint("Equal", 44, 49),
    Sketcher.Constraint("Equal", 45, 50),
    Sketcher.Constraint("Equal", 46, 51),
    Sketcher.Constraint("Equal", 49, 54),
    Sketcher.Constraint("Equal", 50, 55),
    Sketcher.Constraint("Equal", 51, 56),
    Sketcher.Constraint("Equal", 54, 59),
    Sketcher.Constraint("Radius", 1, Q("70 mm")),
    Sketcher.Constraint("Radius", 37, Q("11 mm")),
    Sketcher.Constraint("Angle", 3, Q("-72 deg")),
    Sketcher.Constraint("Angle", 6, Q("-144 deg")),
    Sketcher.Constraint("Angle", 13, Q("144 deg")),
    Sketcher.Constraint("Angle", 20, Q("72 deg")),
    Sketcher.Constraint("DistanceX", 31, 1, 31, 2, Q("43.874299 mm")),
    Sketcher.Constraint("Distance", 3, Q("43.874299 mm")),
    Sketcher.Constraint("DistanceX", 33, 2, 33, 1, Q("61.63465 mm")),
    Sketcher.Constraint("DistanceX", 41, 2, 41, 1, Q("14.835591 mm")),
    Sketcher.Constraint("DistanceX", -1, 1, 0, 2, Q("58.053299 mm")),
    Sketcher.Constraint("DistanceY", 2, 2, -1, 1, Q("26.197698 mm")),
    Sketcher.Constraint("DistanceY", 7, 2, -1, 1, Q("67.298502 mm")),
    Sketcher.Constraint("DistanceX", 50, 2, -1, 1, Q("21.777899 mm")),
    Sketcher.Constraint("Distance", 5, Q("61.63465 mm")),
    Sketcher.Constraint("Distance", 36, Q("14.835591 mm")),
    Sketcher.Constraint("DistanceX", 27, 1, 27, 2, Q("16.965074 mm")),
    Sketcher.Constraint("DistanceX", 39, 1, 39, 2, Q("11.200022 mm")),
    Sketcher.Constraint("DistanceY", 4, 1, -1, 1, Q("68.783769 mm")),
    Sketcher.Constraint("DistanceX", 11, 1, -1, 1, Q("61.40249 mm")),
    Sketcher.Constraint("DistanceY", -1, 1, 13, 2, Q("12.588239 mm")),
    Sketcher.Constraint("DistanceX", 19, 2, -1, 1, Q("1.077388 mm")),
    Sketcher.Constraint("DistanceX", -1, 1, 42, 2, Q("10.461622 mm")),
])
pad3 = doc.addObject("PartDesign::Pad", "Pad002")
body3.addObject(pad3)
pad3.Profile = sketch5
pad3.Length = 9
pad3.Midplane = True

doc.recompute()
